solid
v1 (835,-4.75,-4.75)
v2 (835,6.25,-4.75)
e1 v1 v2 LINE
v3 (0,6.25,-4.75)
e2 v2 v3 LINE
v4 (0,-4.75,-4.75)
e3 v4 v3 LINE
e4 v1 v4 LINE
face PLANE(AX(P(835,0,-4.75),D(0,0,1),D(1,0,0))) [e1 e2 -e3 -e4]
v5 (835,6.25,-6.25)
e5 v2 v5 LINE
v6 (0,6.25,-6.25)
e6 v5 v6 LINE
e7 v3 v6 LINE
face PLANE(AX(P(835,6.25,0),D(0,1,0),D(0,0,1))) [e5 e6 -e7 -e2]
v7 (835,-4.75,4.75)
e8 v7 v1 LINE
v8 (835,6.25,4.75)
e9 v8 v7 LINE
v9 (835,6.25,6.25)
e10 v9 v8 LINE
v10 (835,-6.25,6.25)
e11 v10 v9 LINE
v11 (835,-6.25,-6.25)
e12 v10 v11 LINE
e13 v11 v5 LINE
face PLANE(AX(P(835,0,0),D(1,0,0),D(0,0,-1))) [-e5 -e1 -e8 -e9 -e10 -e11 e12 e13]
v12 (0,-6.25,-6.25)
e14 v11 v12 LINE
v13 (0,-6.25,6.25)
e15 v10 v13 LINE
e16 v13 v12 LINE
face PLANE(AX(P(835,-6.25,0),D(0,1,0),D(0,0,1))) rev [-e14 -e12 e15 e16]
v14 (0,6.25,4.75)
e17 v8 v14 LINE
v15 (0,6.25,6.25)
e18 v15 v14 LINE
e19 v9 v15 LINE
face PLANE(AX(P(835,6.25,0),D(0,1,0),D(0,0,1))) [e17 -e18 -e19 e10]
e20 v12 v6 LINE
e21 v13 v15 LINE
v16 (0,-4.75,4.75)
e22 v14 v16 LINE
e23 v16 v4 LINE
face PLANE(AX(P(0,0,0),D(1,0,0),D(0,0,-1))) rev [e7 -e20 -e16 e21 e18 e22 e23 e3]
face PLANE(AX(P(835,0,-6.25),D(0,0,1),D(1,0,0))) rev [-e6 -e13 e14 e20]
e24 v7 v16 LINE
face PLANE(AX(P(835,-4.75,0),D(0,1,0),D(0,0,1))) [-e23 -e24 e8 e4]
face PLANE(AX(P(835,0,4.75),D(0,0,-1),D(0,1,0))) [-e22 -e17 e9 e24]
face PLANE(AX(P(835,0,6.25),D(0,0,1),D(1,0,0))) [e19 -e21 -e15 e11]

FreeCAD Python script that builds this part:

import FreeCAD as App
import Part
import Sketcher
Q = App.Units.Quantity

doc = App.newDocument("Part")
body = doc.addObject("PartDesign::Body", "Body")

# Sketch on YZ plane
sketch1 = body.newObject("Sketcher::SketchObject", "Sketch")
sketch1.AttachmentSupport = (doc.getObject("YZ_Plane"), [""])
sketch1.MapMode = "FlatFace"
sketch1.addGeometry([
    Part.LineSegment(App.Vector(6.25, 6.25, 0), App.Vector(-6.25, 6.25, 0)),  # 0
    Part.LineSegment(App.Vector(-6.25, 6.25, 0), App.Vector(-6.25, -6.25, 0)),  # 1
    Part.LineSegment(App.Vector(-6.25, -6.25, 0), App.Vector(6.25, -6.25, 0)),  # 2
    Part.LineSegment(App.Vector(6.25, -6.25, 0), App.Vector(6.25, -4.75, 0)),  # 3
    Part.LineSegment(App.Vector(6.25, -4.75, 0), App.Vector(-4.75, -4.75, 0)),  # 4
    Part.LineSegment(App.Vector(-4.75, -4.75, 0), App.Vector(-4.75, 4.75, 0)),  # 5
    Part.LineSegment(App.Vector(-4.75, 4.75, 0), App.Vector(6.25, 4.75, 0)),  # 6
    Part.LineSegment(App.Vector(6.25, 4.75, 0), App.Vector(6.25, 6.25, 0)),  # 7
], False)
sketch1.addConstraint([
    Sketcher.Constraint("Coincident", 0, 2, 1, 1),
    Sketcher.Constraint("Coincident", 1, 2, 2, 1),
    Sketcher.Constraint("Coincident", 2, 2, 3, 1),
    Sketcher.Constraint("Coincident", 3, 2, 4, 1),
    Sketcher.Constraint("Coincident", 4, 2, 5, 1),
    Sketcher.Constraint("Coincident", 5, 2, 6, 1),
    Sketcher.Constraint("Coincident", 6, 2, 7, 1),
    Sketcher.Constraint("Coincident", 7, 2, 0, 1),
    Sketcher.Constraint("Horizontal", 0),
    Sketcher.Constraint("Vertical", 1),
    Sketcher.Constraint("Horizontal", 2),
    Sketcher.Constraint("Vertical", 3),
    Sketcher.Constraint("Horizontal", 4),
    Sketcher.Constraint("Vertical", 5),
    Sketcher.Constraint("Horizontal", 6),
    Sketcher.Constraint("Vertical", 7),
    Sketcher.Constraint("Symmetric", 0, 2, 2, 2, -1, 1),
    Sketcher.Constraint("Symmetric", 3, 2, 6, 2, -1),
    Sketcher.Constraint("Equal", 2, 1),
    Sketcher.Constraint("DistanceX", 4, 2, 4, 1, Q("11 mm")),
    Sketcher.Constraint("DistanceX", 0, 2, 0, 1, Q("12.5 mm")),
    Sketcher.Constraint("DistanceY", 3, 1, 3, 2, Q("1.5 mm")),
])
pad1 = body.newObject("PartDesign::Pad", "Pad")
pad1.Profile = sketch1
pad1.Length = 835

doc.recompute()
